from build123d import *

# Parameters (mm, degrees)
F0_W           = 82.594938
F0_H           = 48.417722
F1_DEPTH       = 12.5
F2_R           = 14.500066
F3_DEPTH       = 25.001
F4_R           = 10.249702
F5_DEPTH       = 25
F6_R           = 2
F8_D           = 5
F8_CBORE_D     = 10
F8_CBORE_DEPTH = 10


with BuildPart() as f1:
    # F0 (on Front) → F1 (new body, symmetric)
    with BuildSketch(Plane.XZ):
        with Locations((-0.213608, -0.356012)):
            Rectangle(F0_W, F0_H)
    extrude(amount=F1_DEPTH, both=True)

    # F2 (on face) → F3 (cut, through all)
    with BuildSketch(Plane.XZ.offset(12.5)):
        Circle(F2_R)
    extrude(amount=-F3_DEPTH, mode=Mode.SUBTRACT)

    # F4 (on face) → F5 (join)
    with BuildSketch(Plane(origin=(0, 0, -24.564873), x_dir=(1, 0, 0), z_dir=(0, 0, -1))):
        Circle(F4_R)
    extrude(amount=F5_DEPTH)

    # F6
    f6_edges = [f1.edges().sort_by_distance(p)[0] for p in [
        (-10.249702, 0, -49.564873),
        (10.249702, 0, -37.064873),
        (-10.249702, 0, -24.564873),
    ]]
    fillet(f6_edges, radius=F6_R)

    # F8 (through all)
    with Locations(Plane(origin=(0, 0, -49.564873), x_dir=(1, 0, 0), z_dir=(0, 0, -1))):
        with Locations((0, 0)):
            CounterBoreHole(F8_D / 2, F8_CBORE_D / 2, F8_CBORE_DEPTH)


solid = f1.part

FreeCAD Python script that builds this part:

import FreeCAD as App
import Part
import Sketcher

V = App.Vector


def edges_at(feature, points):
    """Names of the edges that pass closest to the given points."""
    edges = feature.Shape.Edges
    near = lambda p: min(range(len(edges)), key=lambda i: edges[i].distToShape(Part.Vertex(*p))[0])
    return sorted({f"Edge{near(p) + 1}" for p in points})


def add_polygon(sketch, points):
    """Adds a closed chain of lines whose ends are joined by coincident constraints."""
    first, n = sketch.GeometryCount, len(points)
    for a, b in zip(points, points[1:] + points[:1]):
        sketch.addGeometry(Part.LineSegment(App.Vector(*a, 0), App.Vector(*b, 0)), False)
    for i in range(n):
        sketch.addConstraint(Sketcher.Constraint("Coincident", first + i, 2, first + (i + 1) % n, 1))

doc = App.newDocument("Part")
params = doc.addObject("Spreadsheet::Sheet", "Params")
for row, (alias, value) in enumerate([
    ("pad1_length", "25 mm"),
    ("pad2_length", "25 mm"),
    ("fillet_radius", "2 mm"),
    ("sketch4_diameter", "5 mm"),
    ("hole_diameter", "5 mm"),
    ("hole_cbore_diameter", "10 mm"),
    ("hole_cbore_depth", "10 mm"),
], start=1):
    params.set(f"A{row}", alias)
    params.set(f"B{row}", "=" + value)
    params.setAlias(f"B{row}", alias)

body = doc.addObject("PartDesign::Body", "Body")

sketch1 = body.newObject("Sketcher::SketchObject", "Sketch")
sketch1.AttachmentSupport = (doc.getObject("XZ_Plane"), [""])
sketch1.MapMode = "FlatFace"
add_polygon(sketch1, [(-41.511077, 23.852849), (-41.511077, -24.564873), (41.083861, -24.564873), (41.083861, 23.852849)])
sketch1.addConstraint([
    Sketcher.Constraint("Vertical", 0),
    Sketcher.Constraint("Horizontal", 1),
    Sketcher.Constraint("Vertical", 2),
    Sketcher.Constraint("Horizontal", 3),
    Sketcher.Constraint("DistanceX", 1, 1, 1, 2, 82.594938),
    Sketcher.Constraint("DistanceY", 0, 2, 0, 1, 48.417722),
    Sketcher.Constraint("DistanceX", -1, 1, 1, 2, 41.083861),
    Sketcher.Constraint("DistanceY", -1, 1, 2, 2, 23.852849),
])
pad1 = body.newObject("PartDesign::Pad", "Pad")
pad1.Profile = sketch1
pad1.setExpression("Length", "Params.pad1_length")
pad1.Midplane = True

sketch2 = body.newObject("Sketcher::SketchObject", "Sketch001")
sketch2.AttachmentSupport = (doc.getObject("XZ_Plane"), [""])
sketch2.MapMode = "FlatFace"
sketch2.AttachmentOffset = App.Placement(V(0, 0, 12.5), App.Rotation())
sketch2.addGeometry(Part.Circle(V(0, 0, 0), V(0, 0, 1), 14.500066), False)
sketch2.addConstraint([
    Sketcher.Constraint("Coincident", 0, 3, -1, 1),
    Sketcher.Constraint("Diameter", 0, 29.000132),
])
pocket1 = body.newObject("PartDesign::Pocket", "Pocket")
pocket1.Profile = sketch2
pocket1.Type = "ThroughAll"

sketch3 = body.newObject("Sketcher::SketchObject", "Sketch002")
sketch3.AttachmentSupport = (doc.getObject("XY_Plane"), [""])
sketch3.MapMode = "FlatFace"
sketch3.AttachmentOffset = App.Placement(V(0, 0, -24.564873), App.Rotation())
sketch3.addGeometry(Part.Circle(V(0, 0, 0), V(0, 0, 1), 10.249702), False)
sketch3.addConstraint([
    Sketcher.Constraint("Coincident", 0, 3, -1, 1),
    Sketcher.Constraint("Diameter", 0, 20.499404),
])
pad2 = body.newObject("PartDesign::Pad", "Pad001")
pad2.Profile = sketch3
pad2.setExpression("Length", "Params.pad2_length")
pad2.Reversed = True
doc.recompute()

fillet = body.newObject("PartDesign::Fillet", "Fillet")
fillet.Base = (pad2, edges_at(pad2, [(-10.25, 0, -49.565), (10.25, 0, -37.065), (-10.25, 0, -24.565)]))
fillet.setExpression("Radius", "Params.fillet_radius")

sketch4 = body.newObject("Sketcher::SketchObject", "Sketch003")
sketch4.AttachmentSupport = (doc.getObject("XY_Plane"), [""])
sketch4.MapMode = "FlatFace"
sketch4.AttachmentOffset = App.Placement(V(0, 0, -49.564873), App.Rotation())
sketch4.addGeometry(Part.Circle(V(0, 0, 0), V(0, 0, 1), 2.5), False)
sketch4.addConstraint([
    Sketcher.Constraint("Coincident", 0, 3, -1, 1),
    Sketcher.Constraint("Diameter", 0, 5.0),
])
sketch4.setExpression("Constraints[1]", "Params.sketch4_diameter")
doc.recompute()
hole = body.newObject("PartDesign::Hole", "Hole")
hole.Profile = sketch4
hole.ThreadType = "None"
hole.setExpression("Diameter", "Params.hole_diameter")
hole.DepthType = "ThroughAll"
hole.HoleCutType = "Counterbore"
hole.setExpression("HoleCutDiameter", "Params.hole_cbore_diameter")
hole.setExpression("HoleCutDepth", "Params.hole_cbore_depth")
hole.Reversed = True

doc.recompute()
